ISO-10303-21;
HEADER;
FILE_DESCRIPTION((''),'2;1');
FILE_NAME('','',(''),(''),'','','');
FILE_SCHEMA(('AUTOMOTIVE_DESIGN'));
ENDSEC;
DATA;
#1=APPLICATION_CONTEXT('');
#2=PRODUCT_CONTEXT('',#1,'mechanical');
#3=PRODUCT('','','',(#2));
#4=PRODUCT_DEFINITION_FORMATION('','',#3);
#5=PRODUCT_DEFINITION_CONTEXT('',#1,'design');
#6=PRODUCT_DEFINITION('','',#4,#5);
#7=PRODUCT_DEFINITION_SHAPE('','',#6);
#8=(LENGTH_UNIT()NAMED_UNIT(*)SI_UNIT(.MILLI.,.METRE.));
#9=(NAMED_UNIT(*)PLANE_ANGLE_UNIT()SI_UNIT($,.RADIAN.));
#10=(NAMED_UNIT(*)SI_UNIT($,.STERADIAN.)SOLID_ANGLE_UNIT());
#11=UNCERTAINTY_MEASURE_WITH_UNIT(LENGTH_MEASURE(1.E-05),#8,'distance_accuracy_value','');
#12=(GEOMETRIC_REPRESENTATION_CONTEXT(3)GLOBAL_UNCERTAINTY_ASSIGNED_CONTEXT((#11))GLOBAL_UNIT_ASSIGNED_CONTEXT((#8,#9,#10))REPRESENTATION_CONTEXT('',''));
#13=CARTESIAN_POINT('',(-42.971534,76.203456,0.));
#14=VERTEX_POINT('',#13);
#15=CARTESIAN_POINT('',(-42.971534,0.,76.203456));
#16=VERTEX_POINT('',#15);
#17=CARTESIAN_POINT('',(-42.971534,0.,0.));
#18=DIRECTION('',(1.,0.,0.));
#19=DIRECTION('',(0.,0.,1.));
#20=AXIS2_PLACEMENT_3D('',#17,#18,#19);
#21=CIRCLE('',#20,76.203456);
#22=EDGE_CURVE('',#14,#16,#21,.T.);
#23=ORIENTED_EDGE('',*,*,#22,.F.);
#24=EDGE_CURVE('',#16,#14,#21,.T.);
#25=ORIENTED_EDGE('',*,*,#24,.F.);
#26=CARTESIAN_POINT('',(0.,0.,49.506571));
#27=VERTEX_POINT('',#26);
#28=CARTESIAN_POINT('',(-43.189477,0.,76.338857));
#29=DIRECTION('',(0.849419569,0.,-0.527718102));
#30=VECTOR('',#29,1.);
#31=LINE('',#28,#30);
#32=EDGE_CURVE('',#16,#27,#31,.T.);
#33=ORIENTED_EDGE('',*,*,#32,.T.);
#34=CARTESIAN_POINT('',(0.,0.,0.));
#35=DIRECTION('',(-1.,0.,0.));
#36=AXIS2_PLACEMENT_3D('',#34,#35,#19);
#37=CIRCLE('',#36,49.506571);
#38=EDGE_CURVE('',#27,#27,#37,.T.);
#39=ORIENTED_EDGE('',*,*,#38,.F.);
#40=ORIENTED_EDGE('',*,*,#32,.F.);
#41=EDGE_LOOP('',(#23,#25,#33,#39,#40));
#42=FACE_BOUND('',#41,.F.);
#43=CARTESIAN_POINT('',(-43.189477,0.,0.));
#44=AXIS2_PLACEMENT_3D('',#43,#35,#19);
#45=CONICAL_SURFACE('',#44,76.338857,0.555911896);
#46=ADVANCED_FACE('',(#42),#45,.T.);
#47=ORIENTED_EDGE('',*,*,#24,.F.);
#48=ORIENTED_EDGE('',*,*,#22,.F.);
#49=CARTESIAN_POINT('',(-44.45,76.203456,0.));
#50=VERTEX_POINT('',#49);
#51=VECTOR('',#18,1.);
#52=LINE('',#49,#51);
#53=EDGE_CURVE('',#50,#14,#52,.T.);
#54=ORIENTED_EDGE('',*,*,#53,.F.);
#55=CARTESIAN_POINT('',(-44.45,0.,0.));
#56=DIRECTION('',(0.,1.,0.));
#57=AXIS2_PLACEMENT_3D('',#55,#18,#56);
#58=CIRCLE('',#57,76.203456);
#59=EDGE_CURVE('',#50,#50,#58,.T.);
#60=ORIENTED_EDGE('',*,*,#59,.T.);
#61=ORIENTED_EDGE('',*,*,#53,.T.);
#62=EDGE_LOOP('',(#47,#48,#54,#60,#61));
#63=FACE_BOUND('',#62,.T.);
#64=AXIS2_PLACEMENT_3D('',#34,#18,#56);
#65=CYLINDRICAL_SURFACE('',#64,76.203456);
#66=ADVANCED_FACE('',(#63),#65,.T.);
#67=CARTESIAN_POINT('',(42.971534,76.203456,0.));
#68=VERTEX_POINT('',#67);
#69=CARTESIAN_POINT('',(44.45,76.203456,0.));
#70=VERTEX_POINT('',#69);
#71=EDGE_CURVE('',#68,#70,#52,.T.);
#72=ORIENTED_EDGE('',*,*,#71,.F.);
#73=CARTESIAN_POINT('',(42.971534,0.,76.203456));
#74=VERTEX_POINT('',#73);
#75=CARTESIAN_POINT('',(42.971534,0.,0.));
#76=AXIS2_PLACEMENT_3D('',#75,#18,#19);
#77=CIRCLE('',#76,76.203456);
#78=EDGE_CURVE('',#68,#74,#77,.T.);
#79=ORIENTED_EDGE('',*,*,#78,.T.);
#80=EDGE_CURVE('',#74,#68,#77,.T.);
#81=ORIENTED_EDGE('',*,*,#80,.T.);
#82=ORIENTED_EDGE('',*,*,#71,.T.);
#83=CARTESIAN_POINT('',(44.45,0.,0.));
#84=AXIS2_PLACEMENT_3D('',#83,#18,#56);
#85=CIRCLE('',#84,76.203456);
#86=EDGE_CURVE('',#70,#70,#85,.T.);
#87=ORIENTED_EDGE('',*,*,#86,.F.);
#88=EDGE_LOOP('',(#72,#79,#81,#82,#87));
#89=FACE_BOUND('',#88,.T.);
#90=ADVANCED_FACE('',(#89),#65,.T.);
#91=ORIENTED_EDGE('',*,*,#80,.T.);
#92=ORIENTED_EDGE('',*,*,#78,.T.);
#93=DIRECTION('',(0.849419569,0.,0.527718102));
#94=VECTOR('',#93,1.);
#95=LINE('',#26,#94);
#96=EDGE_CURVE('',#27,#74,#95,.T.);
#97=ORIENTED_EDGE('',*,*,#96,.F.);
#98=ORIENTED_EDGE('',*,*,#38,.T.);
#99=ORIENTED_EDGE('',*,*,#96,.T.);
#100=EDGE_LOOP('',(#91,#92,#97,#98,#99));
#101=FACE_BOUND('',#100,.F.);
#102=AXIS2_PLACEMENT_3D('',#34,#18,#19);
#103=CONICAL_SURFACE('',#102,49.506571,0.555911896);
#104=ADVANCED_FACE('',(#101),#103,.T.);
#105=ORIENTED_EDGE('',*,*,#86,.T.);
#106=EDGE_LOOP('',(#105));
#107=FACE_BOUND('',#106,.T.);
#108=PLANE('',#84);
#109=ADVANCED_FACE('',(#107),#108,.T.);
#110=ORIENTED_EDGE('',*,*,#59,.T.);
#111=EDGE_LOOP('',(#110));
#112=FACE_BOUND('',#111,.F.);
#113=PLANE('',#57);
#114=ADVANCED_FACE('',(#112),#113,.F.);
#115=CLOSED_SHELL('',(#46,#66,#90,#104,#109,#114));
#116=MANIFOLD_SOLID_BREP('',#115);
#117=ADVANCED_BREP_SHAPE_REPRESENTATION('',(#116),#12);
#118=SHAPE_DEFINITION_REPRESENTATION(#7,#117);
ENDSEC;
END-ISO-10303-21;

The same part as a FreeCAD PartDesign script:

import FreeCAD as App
import Part
import Sketcher

V = App.Vector
Q = App.Units.Quantity

doc = App.newDocument("Part")
body = doc.addObject("PartDesign::Body", "Body")

sketch1 = body.newObject("Sketcher::SketchObject", "Sketch")
sketch1.AttachmentSupport = (doc.getObject("YZ_Plane"), [""])
sketch1.MapMode = "FlatFace"
sketch1.addGeometry(Part.Circle(V(0, 0, 0), V(0, 0, 1), 76), False)
sketch1.addConstraint([
    Sketcher.Constraint("Coincident", 0, 3, -1, 1),
    Sketcher.Constraint("Diameter", 0, 152.406912),
])
pad1 = body.newObject("PartDesign::Pad", "Pad")
pad1.Profile = sketch1
pad1.Type = "TwoLengths"
pad1.Length = Q("1.75 in")
pad1.Length2 = Q("1.75 in")

sketch2 = body.newObject("Sketcher::SketchObject", "Sketch001")
sketch2.AttachmentSupport = (doc.getObject("XZ_Plane"), [""])
sketch2.MapMode = "FlatFace"
sketch2.addGeometry([
    Part.LineSegment(V(43, 76, 0), V(-43, 76, 0)),
    Part.LineSegment(V(-43, 76, 0), V(0, 50, 0)),
    Part.LineSegment(V(0, 50, 0), V(43, 76, 0)),
], False)
sketch2.addConstraint([
    Sketcher.Constraint("Coincident", 0, 2, 1, 1),
    Sketcher.Constraint("Coincident", 1, 2, 2, 1),
    Sketcher.Constraint("Coincident", 2, 2, 0, 1),
    Sketcher.Constraint("Horizontal", 0),
    Sketcher.Constraint("PointOnObject", 1, 2, -2),
    Sketcher.Constraint("Equal", 1, 2),
    Sketcher.Constraint("Distance", 1, 50.84587),
    Sketcher.Constraint("DistanceX", 0, 2, 0, 1, 86.378954),
    Sketcher.Constraint("DistanceY", -1, 1, 1, 2, 49.506571),
])
groove = body.newObject("PartDesign::Groove", "Groove")
groove.Profile = sketch2
groove.ReferenceAxis = (sketch2, ["H_Axis"])
groove.Angle = 360

doc.recompute()
